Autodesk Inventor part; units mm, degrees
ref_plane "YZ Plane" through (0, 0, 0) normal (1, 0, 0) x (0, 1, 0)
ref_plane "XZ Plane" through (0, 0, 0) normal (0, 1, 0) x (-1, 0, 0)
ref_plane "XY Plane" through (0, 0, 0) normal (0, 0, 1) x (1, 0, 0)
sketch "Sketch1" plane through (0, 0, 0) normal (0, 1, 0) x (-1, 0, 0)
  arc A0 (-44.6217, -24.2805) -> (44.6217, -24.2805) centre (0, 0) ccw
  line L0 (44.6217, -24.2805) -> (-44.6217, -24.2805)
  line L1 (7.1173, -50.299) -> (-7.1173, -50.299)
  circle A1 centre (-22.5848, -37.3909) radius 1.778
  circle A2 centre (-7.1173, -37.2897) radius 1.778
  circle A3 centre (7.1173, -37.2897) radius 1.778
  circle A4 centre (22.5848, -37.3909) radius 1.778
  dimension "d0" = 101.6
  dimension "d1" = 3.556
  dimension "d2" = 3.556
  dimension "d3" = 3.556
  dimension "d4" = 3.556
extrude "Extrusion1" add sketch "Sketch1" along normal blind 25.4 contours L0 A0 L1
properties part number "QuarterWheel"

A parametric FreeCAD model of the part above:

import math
import FreeCAD as App
import Part
import Sketcher
from FreeCAD import Vector
Q = App.Units.Quantity

doc = App.newDocument("Part")
body = doc.addObject("PartDesign::Body", "Body")

sketch1 = doc.addObject("Sketcher::SketchObject", "Sketch")
body.addObject(sketch1)
sketch1.AttachmentSupport = (doc.XZ_Plane, [""])
sketch1.MapMode = "FlatFace"
sketch1.addGeometry([
    Part.LineSegment(Vector(-44.6, -24.3, 0), Vector(44.6, -24.3, 0)),
    Part.ArcOfCircle(Part.Circle(Vector(0, 0, 0), Vector(0, 0, 1), 50.8), math.radians(-82), math.radians(-29)),
    Part.LineSegment(Vector(7.1, -50.3, 0), Vector(-7.1, -50.3, 0)),
    Part.ArcOfCircle(Part.Circle(Vector(0, 0, 0), Vector(0, 0, 1), 50.8), math.radians(-151), math.radians(-98)),
    Part.Circle(Vector(22.6, -37.4, 0), Vector(0, 0, 1), 1.8),
    Part.Circle(Vector(7.1, -37.3, 0), Vector(0, 0, 1), 1.8),
    Part.Circle(Vector(-7.1, -37.3, 0), Vector(0, 0, 1), 1.8),
    Part.Circle(Vector(-22.6, -37.4, 0), Vector(0, 0, 1), 1.8),
], False)
sketch1.addConstraint([
    Sketcher.Constraint("Coincident", 0, 2, 1, 2),
    Sketcher.Constraint("Coincident", 1, 1, 2, 1),
    Sketcher.Constraint("Coincident", 2, 2, 3, 2),
    Sketcher.Constraint("Coincident", 3, 1, 0, 1),
    Sketcher.Constraint("Horizontal", 0),
    Sketcher.Constraint("Horizontal", 2),
    Sketcher.Constraint("Coincident", 1, 3, -1, 1),
    Sketcher.Constraint("Coincident", 3, 3, -1, 1),
    Sketcher.Constraint("Equal", 1, 3),
    Sketcher.Constraint("Equal", 4, 5),
    Sketcher.Constraint("Equal", 5, 6),
    Sketcher.Constraint("Equal", 6, 7),
    Sketcher.Constraint("Symmetric", 5, 3, 6, 3, -2),
    Sketcher.Constraint("Symmetric", 4, 3, 7, 3, -2),
    Sketcher.Constraint("Vertical", 5, 3, 1, 1),
    Sketcher.Constraint("Radius", 1, Q("2 in")),
    Sketcher.Constraint("Diameter", 4, Q("0.14 in")),
    Sketcher.Constraint("DistanceX", 0, 1, 0, 2, 89.2434),
    Sketcher.Constraint("DistanceX", 2, 2, 2, 1, 14.2346),
    Sketcher.Constraint("DistanceY", 5, 3, -1, 1, Q("1.4681 in")),
    Sketcher.Constraint("DistanceX", 4, 3, 0, 2, Q("0.8676 in")),
    Sketcher.Constraint("DistanceY", 1, 1, 4, 3, Q("0.5082 in")),
])
pad1 = doc.addObject("PartDesign::Pad", "Pad")
body.addObject(pad1)
pad1.Profile = sketch1
pad1.Length = Q("1 in")
pad1.Reversed = True

doc.recompute()
